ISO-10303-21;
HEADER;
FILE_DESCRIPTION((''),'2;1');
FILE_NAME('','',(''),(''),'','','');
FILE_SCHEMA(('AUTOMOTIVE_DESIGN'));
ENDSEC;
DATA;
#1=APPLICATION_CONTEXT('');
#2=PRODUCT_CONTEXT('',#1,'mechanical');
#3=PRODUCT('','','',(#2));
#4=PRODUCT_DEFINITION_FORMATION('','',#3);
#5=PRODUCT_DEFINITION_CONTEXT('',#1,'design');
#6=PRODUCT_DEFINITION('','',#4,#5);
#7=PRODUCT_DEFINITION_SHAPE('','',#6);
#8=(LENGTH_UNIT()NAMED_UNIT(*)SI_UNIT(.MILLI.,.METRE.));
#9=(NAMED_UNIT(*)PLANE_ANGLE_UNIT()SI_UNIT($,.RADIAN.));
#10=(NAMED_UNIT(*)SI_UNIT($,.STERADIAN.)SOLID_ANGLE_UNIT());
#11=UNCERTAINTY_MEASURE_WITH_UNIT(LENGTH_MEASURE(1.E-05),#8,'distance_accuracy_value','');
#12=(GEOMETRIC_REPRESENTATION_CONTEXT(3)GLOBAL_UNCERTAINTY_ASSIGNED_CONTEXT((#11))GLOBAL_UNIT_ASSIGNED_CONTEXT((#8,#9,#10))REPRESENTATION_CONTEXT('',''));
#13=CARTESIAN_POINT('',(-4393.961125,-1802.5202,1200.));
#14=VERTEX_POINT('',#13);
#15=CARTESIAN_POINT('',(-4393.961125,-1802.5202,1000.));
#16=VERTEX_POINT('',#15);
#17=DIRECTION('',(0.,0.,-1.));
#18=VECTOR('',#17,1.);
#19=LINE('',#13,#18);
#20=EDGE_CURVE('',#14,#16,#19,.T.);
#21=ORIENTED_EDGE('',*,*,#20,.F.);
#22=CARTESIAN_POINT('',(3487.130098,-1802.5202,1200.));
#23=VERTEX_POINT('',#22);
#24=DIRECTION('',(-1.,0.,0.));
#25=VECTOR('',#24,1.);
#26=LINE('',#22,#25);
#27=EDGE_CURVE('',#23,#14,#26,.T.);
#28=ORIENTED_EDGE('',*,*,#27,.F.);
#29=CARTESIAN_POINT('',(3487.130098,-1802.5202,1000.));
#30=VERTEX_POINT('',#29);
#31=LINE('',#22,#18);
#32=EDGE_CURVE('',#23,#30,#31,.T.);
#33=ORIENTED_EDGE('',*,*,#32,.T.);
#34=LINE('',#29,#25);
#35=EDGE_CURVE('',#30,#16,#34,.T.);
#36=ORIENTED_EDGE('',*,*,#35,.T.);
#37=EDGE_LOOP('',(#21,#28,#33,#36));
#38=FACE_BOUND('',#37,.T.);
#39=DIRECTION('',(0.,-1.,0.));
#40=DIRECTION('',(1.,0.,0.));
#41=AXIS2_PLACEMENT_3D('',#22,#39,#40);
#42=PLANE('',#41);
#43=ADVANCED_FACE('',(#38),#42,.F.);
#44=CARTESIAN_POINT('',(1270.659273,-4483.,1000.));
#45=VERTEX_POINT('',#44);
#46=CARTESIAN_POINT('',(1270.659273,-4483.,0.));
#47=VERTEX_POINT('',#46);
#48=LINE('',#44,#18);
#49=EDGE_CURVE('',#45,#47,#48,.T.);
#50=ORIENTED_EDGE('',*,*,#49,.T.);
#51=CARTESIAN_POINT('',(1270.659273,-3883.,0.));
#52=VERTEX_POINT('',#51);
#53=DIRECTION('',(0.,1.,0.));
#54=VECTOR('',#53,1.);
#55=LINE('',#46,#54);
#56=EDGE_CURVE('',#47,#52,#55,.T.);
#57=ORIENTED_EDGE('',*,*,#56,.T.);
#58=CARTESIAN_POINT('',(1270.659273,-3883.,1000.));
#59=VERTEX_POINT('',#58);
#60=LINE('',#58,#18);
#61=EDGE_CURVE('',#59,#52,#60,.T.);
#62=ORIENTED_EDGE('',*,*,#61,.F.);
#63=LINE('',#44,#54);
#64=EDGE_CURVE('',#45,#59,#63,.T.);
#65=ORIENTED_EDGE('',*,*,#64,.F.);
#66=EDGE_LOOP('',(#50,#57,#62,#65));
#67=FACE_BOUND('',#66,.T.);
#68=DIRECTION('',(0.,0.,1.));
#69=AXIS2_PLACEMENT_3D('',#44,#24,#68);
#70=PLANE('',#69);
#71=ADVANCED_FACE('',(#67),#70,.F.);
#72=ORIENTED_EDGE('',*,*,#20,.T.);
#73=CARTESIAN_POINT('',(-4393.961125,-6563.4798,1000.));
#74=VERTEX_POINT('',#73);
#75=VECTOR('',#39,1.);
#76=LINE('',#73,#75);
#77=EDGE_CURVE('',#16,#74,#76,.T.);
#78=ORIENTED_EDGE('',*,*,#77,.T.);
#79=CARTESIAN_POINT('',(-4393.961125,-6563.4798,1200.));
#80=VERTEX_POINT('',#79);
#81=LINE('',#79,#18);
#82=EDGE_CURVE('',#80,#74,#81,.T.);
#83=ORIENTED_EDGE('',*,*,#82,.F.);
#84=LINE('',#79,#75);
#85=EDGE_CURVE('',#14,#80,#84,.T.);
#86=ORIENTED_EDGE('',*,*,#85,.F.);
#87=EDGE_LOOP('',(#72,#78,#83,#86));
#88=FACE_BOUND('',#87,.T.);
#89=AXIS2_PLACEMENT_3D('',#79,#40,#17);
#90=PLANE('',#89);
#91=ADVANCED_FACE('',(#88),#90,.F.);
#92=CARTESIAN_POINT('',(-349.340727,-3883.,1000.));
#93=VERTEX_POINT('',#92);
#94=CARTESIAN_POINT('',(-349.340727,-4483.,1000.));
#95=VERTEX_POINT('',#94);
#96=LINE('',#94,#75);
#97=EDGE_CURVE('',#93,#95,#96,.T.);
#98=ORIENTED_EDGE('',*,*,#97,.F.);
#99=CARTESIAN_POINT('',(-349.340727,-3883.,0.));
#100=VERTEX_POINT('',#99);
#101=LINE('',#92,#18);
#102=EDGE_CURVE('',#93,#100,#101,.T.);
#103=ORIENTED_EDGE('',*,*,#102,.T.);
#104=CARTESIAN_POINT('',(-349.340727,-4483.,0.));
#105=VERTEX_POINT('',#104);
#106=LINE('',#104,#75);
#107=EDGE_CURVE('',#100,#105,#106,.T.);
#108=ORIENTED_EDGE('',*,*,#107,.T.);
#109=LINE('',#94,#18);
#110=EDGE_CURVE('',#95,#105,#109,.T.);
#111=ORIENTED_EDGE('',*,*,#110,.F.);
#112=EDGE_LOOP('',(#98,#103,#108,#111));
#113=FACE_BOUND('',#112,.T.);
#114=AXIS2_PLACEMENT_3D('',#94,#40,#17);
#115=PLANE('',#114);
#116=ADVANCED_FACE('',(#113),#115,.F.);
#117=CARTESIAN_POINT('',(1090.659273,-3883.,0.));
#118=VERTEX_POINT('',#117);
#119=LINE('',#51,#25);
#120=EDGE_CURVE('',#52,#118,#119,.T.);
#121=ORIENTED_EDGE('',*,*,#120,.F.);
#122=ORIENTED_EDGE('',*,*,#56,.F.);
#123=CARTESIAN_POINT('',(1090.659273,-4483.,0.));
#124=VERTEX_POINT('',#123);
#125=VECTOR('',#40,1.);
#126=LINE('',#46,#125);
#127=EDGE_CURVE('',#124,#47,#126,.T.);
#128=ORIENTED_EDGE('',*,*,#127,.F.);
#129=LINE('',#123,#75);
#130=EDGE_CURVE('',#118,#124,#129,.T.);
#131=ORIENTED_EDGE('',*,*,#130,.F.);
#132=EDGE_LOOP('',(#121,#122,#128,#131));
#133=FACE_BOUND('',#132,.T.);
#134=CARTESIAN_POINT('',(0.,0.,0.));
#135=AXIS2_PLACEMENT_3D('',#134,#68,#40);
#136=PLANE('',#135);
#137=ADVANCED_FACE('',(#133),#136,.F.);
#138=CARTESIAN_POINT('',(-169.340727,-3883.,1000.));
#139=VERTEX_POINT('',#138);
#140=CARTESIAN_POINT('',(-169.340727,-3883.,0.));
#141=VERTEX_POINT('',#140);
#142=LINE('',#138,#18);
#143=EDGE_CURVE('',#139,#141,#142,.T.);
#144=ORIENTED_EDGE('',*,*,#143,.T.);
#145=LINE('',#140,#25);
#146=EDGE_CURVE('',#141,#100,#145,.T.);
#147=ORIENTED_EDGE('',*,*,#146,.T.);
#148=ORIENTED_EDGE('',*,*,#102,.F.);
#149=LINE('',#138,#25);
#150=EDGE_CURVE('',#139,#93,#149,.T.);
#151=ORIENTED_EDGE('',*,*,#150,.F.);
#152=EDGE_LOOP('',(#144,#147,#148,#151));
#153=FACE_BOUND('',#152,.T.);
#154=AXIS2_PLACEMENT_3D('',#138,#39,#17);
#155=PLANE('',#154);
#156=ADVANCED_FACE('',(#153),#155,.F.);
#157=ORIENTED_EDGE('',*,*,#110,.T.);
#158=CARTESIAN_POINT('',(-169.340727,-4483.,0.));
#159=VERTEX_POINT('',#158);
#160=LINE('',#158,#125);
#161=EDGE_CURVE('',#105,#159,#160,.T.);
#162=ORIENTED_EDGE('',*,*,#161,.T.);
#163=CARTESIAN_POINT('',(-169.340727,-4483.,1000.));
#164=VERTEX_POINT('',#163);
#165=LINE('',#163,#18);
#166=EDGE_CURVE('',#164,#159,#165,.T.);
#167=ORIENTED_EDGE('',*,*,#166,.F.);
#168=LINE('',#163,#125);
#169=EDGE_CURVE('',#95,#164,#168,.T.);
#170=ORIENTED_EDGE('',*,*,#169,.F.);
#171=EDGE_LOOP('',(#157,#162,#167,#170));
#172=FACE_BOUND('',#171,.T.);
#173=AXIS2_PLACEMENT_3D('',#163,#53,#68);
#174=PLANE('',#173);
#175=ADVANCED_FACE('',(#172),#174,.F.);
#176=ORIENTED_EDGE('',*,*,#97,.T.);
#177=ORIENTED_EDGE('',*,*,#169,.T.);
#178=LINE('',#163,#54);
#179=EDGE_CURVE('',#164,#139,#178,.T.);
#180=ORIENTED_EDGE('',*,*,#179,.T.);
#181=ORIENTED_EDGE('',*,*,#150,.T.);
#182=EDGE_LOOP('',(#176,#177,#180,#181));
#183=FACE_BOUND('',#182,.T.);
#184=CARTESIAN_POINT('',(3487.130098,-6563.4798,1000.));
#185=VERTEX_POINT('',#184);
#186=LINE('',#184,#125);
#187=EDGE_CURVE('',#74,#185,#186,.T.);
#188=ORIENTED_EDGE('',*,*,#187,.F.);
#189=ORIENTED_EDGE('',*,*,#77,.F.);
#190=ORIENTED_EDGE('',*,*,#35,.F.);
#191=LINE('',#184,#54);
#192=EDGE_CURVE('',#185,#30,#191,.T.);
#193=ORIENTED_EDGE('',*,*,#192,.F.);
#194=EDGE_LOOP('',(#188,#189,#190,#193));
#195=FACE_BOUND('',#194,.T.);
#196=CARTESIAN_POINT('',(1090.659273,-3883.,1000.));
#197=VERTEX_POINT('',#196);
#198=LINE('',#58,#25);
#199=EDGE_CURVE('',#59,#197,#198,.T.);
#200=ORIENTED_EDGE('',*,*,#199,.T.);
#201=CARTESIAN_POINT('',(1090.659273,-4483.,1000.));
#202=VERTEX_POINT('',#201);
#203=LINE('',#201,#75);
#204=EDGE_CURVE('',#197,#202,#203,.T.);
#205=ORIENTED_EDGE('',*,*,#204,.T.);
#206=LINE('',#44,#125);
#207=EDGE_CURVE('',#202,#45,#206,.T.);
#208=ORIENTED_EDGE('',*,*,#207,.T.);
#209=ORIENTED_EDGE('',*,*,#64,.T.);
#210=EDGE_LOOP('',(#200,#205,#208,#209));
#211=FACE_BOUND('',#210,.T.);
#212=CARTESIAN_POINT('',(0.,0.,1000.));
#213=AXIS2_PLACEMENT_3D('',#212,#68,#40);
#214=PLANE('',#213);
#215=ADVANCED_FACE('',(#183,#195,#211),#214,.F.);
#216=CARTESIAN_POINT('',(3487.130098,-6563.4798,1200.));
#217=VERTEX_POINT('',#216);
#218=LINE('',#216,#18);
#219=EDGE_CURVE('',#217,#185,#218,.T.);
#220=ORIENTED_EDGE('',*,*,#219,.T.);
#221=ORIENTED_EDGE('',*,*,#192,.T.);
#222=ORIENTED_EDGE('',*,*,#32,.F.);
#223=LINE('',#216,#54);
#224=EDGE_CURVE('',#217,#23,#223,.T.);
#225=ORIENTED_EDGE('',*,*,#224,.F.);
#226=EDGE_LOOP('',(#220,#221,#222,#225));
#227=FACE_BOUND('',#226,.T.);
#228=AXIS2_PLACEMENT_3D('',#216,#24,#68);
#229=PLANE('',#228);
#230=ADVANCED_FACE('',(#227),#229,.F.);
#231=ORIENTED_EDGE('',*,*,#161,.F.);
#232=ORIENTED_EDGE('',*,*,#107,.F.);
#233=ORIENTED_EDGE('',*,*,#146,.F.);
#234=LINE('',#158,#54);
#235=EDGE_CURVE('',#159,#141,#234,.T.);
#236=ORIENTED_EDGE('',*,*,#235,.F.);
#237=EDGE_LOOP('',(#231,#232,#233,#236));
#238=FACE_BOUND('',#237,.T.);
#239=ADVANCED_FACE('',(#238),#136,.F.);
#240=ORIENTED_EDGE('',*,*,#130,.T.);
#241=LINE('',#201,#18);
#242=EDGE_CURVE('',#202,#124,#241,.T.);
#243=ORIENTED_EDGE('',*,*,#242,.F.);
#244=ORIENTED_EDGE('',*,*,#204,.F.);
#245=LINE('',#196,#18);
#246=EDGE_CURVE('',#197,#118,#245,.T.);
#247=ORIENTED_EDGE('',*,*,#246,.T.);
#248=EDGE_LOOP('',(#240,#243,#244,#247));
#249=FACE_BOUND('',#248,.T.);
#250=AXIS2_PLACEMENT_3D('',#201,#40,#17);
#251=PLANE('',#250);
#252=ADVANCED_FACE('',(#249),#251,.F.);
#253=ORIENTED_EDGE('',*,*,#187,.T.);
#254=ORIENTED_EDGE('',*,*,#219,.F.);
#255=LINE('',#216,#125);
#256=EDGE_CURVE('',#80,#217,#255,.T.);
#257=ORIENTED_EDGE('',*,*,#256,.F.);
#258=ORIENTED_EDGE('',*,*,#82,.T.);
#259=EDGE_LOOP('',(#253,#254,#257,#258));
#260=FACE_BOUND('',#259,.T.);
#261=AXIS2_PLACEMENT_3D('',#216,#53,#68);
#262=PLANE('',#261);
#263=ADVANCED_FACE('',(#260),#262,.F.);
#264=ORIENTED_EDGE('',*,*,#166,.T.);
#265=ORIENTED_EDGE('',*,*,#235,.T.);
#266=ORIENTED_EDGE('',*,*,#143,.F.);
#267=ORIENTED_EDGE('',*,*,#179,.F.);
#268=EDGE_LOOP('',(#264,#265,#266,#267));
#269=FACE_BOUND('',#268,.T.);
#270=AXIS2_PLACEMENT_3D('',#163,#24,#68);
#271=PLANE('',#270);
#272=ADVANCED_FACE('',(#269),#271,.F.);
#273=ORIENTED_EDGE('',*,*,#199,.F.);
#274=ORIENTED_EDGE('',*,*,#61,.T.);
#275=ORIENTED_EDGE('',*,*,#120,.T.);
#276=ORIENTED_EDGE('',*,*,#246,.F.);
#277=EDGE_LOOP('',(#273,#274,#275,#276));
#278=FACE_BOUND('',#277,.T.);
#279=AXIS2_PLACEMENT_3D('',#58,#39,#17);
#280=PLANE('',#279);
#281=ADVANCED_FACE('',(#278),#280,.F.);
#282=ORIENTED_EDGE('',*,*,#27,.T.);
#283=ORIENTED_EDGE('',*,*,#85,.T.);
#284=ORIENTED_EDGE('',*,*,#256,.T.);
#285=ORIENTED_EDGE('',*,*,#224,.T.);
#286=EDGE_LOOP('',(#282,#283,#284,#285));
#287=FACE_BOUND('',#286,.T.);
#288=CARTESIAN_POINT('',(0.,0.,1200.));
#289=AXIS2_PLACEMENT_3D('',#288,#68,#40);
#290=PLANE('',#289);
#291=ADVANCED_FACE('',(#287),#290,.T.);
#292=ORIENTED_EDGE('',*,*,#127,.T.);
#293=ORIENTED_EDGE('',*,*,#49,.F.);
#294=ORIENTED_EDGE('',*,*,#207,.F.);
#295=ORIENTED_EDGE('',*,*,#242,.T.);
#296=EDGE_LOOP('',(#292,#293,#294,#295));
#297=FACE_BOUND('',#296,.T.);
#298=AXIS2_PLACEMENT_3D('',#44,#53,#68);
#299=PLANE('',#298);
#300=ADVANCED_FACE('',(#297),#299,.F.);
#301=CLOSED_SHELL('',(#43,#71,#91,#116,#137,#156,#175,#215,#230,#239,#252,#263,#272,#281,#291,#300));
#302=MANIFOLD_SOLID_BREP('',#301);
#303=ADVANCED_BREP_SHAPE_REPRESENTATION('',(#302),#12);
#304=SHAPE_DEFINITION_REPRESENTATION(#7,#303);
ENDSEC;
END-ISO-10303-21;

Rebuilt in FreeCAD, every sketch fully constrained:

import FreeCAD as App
import Part
import Sketcher

V = App.Vector
Q = App.Units.Quantity


def add_polygon(sketch, points):
    """Adds a closed chain of lines whose ends are joined by coincident constraints."""
    first, n = sketch.GeometryCount, len(points)
    for a, b in zip(points, points[1:] + points[:1]):
        sketch.addGeometry(Part.LineSegment(App.Vector(*a, 0), App.Vector(*b, 0)), False)
    for i in range(n):
        sketch.addConstraint(Sketcher.Constraint("Coincident", first + i, 2, first + (i + 1) % n, 1))

doc = App.newDocument("Part")
params = doc.addObject("Spreadsheet::Sheet", "Params")
for row, (alias, value) in enumerate([
    ("sketch1_width", "180 mm"),
    ("sketch1_height", "600 mm"),
    ("pad1_length", "1000 mm"),
    ("sketch2_width", "180 mm"),
    ("sketch2_height", "600 mm"),
    ("pad2_length", "1000 mm"),
    ("pad3_length", "200 mm"),
], start=1):
    params.set(f"A{row}", alias)
    params.set(f"B{row}", "=" + value)
    params.setAlias(f"B{row}", alias)

body = doc.addObject("PartDesign::Body", "Body")

# Sketch on XY plane
sketch1 = doc.addObject("Sketcher::SketchObject", "Sketch")
body.addObject(sketch1)
sketch1.AttachmentSupport = (doc.XY_Plane, [""])
sketch1.MapMode = "FlatFace"
add_polygon(sketch1, [(1091, -3883), (1091, -4483), (1271, -4483), (1271, -3883)])  # lines 0-3
sketch1.addConstraint(Sketcher.Constraint("Vertical", 0))
sketch1.addConstraint(Sketcher.Constraint("Horizontal", 1))
sketch1.addConstraint(Sketcher.Constraint("Vertical", 2))
sketch1.addConstraint(Sketcher.Constraint("Horizontal", 3))
sketch1.addConstraint(Sketcher.Constraint("DistanceX", 1, 1, 1, 2, Q("180 mm")))
sketch1.addConstraint(Sketcher.Constraint("DistanceY", 0, 2, 0, 1, Q("600 mm")))
sketch1.addConstraint(Sketcher.Constraint("DistanceY", 0, 2, -1, 1, Q("4483 mm")))
sketch1.addConstraint(Sketcher.Constraint("DistanceX", -1, 1, 0, 2, Q("1090.659273 mm")))
sketch1.setExpression("Constraints[8]", "Params.sketch1_width")
sketch1.setExpression("Constraints[9]", "Params.sketch1_height")
pad1 = doc.addObject("PartDesign::Pad", "Pad")
body.addObject(pad1)
pad1.Profile = sketch1
pad1.setExpression("Length", "Params.pad1_length")
body2 = doc.addObject("PartDesign::Body", "Body001")

# Sketch on XY plane
sketch2 = doc.addObject("Sketcher::SketchObject", "Sketch001")
body2.addObject(sketch2)
sketch2.AttachmentSupport = (doc.getObject("XY_Plane001"), [""])
sketch2.MapMode = "FlatFace"
add_polygon(sketch2, [(-349, -3883), (-349, -4483), (-169, -4483), (-169, -3883)])  # lines 0-3
sketch2.addConstraint(Sketcher.Constraint("Vertical", 0))
sketch2.addConstraint(Sketcher.Constraint("Horizontal", 1))
sketch2.addConstraint(Sketcher.Constraint("Vertical", 2))
sketch2.addConstraint(Sketcher.Constraint("Horizontal", 3))
sketch2.addConstraint(Sketcher.Constraint("DistanceX", 1, 1, 1, 2, Q("180 mm")))
sketch2.addConstraint(Sketcher.Constraint("DistanceY", 0, 2, 0, 1, Q("600 mm")))
sketch2.addConstraint(Sketcher.Constraint("DistanceY", 0, 2, -1, 1, Q("4483 mm")))
sketch2.addConstraint(Sketcher.Constraint("DistanceX", 0, 2, -1, 1, Q("349.340727 mm")))
sketch2.setExpression("Constraints[8]", "Params.sketch2_width")
sketch2.setExpression("Constraints[9]", "Params.sketch2_height")
pad2 = doc.addObject("PartDesign::Pad", "Pad001")
body2.addObject(pad2)
pad2.Profile = sketch2
pad2.setExpression("Length", "Params.pad2_length")
body.AllowCompound = True
doc.recompute()

boolean = doc.addObject("PartDesign::Boolean", "Boolean")
body.addObject(boolean)
boolean.Type = "Fuse"
boolean.addObjects([body2])

# Sketch on XY plane
sketch3 = doc.addObject("Sketcher::SketchObject", "Sketch002")
body.addObject(sketch3)
sketch3.AttachmentSupport = (doc.XY_Plane, [""])
sketch3.MapMode = "FlatFace"
sketch3.AttachmentOffset = App.Placement(V(0, 0, 1000), App.Rotation())
add_polygon(sketch3, [(-4394, -1803), (-4394, -6563), (3487, -6563), (3487, -1803)])  # lines 0-3
sketch3.addConstraint(Sketcher.Constraint("Vertical", 0))
sketch3.addConstraint(Sketcher.Constraint("Horizontal", 1))
sketch3.addConstraint(Sketcher.Constraint("Vertical", 2))
sketch3.addConstraint(Sketcher.Constraint("Horizontal", 3))
sketch3.addConstraint(Sketcher.Constraint("DistanceY", 0, 2, 0, 1, Q("4760.959601 mm")))
sketch3.addConstraint(Sketcher.Constraint("DistanceY", 0, 2, -1, 1, Q("6563.4798 mm")))
sketch3.addConstraint(Sketcher.Constraint("DistanceX", -1, 1, 1, 2, Q("3487.130098 mm")))
sketch3.addConstraint(Sketcher.Constraint("DistanceX", 1, 1, 1, 2, Q("7881.091223 mm")))
pad3 = doc.addObject("PartDesign::Pad", "Pad002")
body.addObject(pad3)
pad3.Profile = sketch3
pad3.setExpression("Length", "Params.pad3_length")

doc.recompute()
